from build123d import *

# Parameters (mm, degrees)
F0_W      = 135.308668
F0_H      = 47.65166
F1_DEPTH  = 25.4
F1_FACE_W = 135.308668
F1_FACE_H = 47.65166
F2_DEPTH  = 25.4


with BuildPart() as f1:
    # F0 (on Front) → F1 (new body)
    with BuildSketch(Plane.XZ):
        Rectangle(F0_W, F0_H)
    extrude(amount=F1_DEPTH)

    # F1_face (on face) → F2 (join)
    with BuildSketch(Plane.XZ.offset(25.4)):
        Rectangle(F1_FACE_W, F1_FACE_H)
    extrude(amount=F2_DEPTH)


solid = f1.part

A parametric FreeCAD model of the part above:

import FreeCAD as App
import Part
import Sketcher
from FreeCAD import Vector
Q = App.Units.Quantity

doc = App.newDocument("Part")
body = doc.addObject("PartDesign::Body", "Body")

# Sketch on XZ plane
sketch1 = body.newObject("Sketcher::SketchObject", "Sketch")
sketch1.AttachmentSupport = (doc.getObject("XZ_Plane"), [""])
sketch1.MapMode = "FlatFace"
sketch1.addGeometry(Part.LineSegment(Vector(-68, 24, 0), Vector(-68, -24, 0)), False)
sketch1.addGeometry(Part.LineSegment(Vector(-68, -24, 0), Vector(68, -24, 0)), False)
sketch1.addGeometry(Part.LineSegment(Vector(68, -24, 0), Vector(68, 24, 0)), False)
sketch1.addGeometry(Part.LineSegment(Vector(68, 24, 0), Vector(-68, 24, 0)), False)
sketch1.addConstraint(Sketcher.Constraint("Coincident", 0, 2, 1, 1))
sketch1.addConstraint(Sketcher.Constraint("Coincident", 1, 2, 2, 1))
sketch1.addConstraint(Sketcher.Constraint("Coincident", 2, 2, 3, 1))
sketch1.addConstraint(Sketcher.Constraint("Coincident", 3, 2, 0, 1))
sketch1.addConstraint(Sketcher.Constraint("Vertical", 0))
sketch1.addConstraint(Sketcher.Constraint("Horizontal", 1))
sketch1.addConstraint(Sketcher.Constraint("Vertical", 2))
sketch1.addConstraint(Sketcher.Constraint("Horizontal", 3))
sketch1.addConstraint(Sketcher.Constraint("Symmetric", 0, 2, 2, 2, -1, 1))
sketch1.addConstraint(Sketcher.Constraint("DistanceX", 1, 1, 1, 2, Q("135.308668 mm")))
sketch1.addConstraint(Sketcher.Constraint("DistanceY", 0, 2, 0, 1, Q("47.65166 mm")))
pad1 = body.newObject("PartDesign::Pad", "Pad")
pad1.Profile = sketch1
pad1.Length = Q("1 in")

# Sketch on XZ plane
sketch2 = body.newObject("Sketcher::SketchObject", "Sketch001")
sketch2.AttachmentSupport = (doc.getObject("XZ_Plane"), [""])
sketch2.MapMode = "FlatFace"
sketch2.AttachmentOffset = App.Placement(Vector(0, 0, 1 * 25.4), App.Rotation())
sketch2.addGeometry(Part.LineSegment(Vector(-68, 24, 0), Vector(-68, -24, 0)), False)
sketch2.addGeometry(Part.LineSegment(Vector(-68, -24, 0), Vector(68, -24, 0)), False)
sketch2.addGeometry(Part.LineSegment(Vector(68, -24, 0), Vector(68, 24, 0)), False)
sketch2.addGeometry(Part.LineSegment(Vector(68, 24, 0), Vector(-68, 24, 0)), False)
sketch2.addConstraint(Sketcher.Constraint("Coincident", 0, 2, 1, 1))
sketch2.addConstraint(Sketcher.Constraint("Coincident", 1, 2, 2, 1))
sketch2.addConstraint(Sketcher.Constraint("Coincident", 2, 2, 3, 1))
sketch2.addConstraint(Sketcher.Constraint("Coincident", 3, 2, 0, 1))
sketch2.addConstraint(Sketcher.Constraint("Vertical", 0))
sketch2.addConstraint(Sketcher.Constraint("Horizontal", 1))
sketch2.addConstraint(Sketcher.Constraint("Vertical", 2))
sketch2.addConstraint(Sketcher.Constraint("Horizontal", 3))
sketch2.addConstraint(Sketcher.Constraint("Symmetric", 0, 2, 2, 2, -1, 1))
sketch2.addConstraint(Sketcher.Constraint("DistanceX", 1, 1, 1, 2, Q("135.308668 mm")))
sketch2.addConstraint(Sketcher.Constraint("DistanceY", 0, 2, 0, 1, Q("47.65166 mm")))
pad2 = body.newObject("PartDesign::Pad", "Pad001")
pad2.Profile = sketch2
pad2.Length = Q("1 in")

doc.recompute()
